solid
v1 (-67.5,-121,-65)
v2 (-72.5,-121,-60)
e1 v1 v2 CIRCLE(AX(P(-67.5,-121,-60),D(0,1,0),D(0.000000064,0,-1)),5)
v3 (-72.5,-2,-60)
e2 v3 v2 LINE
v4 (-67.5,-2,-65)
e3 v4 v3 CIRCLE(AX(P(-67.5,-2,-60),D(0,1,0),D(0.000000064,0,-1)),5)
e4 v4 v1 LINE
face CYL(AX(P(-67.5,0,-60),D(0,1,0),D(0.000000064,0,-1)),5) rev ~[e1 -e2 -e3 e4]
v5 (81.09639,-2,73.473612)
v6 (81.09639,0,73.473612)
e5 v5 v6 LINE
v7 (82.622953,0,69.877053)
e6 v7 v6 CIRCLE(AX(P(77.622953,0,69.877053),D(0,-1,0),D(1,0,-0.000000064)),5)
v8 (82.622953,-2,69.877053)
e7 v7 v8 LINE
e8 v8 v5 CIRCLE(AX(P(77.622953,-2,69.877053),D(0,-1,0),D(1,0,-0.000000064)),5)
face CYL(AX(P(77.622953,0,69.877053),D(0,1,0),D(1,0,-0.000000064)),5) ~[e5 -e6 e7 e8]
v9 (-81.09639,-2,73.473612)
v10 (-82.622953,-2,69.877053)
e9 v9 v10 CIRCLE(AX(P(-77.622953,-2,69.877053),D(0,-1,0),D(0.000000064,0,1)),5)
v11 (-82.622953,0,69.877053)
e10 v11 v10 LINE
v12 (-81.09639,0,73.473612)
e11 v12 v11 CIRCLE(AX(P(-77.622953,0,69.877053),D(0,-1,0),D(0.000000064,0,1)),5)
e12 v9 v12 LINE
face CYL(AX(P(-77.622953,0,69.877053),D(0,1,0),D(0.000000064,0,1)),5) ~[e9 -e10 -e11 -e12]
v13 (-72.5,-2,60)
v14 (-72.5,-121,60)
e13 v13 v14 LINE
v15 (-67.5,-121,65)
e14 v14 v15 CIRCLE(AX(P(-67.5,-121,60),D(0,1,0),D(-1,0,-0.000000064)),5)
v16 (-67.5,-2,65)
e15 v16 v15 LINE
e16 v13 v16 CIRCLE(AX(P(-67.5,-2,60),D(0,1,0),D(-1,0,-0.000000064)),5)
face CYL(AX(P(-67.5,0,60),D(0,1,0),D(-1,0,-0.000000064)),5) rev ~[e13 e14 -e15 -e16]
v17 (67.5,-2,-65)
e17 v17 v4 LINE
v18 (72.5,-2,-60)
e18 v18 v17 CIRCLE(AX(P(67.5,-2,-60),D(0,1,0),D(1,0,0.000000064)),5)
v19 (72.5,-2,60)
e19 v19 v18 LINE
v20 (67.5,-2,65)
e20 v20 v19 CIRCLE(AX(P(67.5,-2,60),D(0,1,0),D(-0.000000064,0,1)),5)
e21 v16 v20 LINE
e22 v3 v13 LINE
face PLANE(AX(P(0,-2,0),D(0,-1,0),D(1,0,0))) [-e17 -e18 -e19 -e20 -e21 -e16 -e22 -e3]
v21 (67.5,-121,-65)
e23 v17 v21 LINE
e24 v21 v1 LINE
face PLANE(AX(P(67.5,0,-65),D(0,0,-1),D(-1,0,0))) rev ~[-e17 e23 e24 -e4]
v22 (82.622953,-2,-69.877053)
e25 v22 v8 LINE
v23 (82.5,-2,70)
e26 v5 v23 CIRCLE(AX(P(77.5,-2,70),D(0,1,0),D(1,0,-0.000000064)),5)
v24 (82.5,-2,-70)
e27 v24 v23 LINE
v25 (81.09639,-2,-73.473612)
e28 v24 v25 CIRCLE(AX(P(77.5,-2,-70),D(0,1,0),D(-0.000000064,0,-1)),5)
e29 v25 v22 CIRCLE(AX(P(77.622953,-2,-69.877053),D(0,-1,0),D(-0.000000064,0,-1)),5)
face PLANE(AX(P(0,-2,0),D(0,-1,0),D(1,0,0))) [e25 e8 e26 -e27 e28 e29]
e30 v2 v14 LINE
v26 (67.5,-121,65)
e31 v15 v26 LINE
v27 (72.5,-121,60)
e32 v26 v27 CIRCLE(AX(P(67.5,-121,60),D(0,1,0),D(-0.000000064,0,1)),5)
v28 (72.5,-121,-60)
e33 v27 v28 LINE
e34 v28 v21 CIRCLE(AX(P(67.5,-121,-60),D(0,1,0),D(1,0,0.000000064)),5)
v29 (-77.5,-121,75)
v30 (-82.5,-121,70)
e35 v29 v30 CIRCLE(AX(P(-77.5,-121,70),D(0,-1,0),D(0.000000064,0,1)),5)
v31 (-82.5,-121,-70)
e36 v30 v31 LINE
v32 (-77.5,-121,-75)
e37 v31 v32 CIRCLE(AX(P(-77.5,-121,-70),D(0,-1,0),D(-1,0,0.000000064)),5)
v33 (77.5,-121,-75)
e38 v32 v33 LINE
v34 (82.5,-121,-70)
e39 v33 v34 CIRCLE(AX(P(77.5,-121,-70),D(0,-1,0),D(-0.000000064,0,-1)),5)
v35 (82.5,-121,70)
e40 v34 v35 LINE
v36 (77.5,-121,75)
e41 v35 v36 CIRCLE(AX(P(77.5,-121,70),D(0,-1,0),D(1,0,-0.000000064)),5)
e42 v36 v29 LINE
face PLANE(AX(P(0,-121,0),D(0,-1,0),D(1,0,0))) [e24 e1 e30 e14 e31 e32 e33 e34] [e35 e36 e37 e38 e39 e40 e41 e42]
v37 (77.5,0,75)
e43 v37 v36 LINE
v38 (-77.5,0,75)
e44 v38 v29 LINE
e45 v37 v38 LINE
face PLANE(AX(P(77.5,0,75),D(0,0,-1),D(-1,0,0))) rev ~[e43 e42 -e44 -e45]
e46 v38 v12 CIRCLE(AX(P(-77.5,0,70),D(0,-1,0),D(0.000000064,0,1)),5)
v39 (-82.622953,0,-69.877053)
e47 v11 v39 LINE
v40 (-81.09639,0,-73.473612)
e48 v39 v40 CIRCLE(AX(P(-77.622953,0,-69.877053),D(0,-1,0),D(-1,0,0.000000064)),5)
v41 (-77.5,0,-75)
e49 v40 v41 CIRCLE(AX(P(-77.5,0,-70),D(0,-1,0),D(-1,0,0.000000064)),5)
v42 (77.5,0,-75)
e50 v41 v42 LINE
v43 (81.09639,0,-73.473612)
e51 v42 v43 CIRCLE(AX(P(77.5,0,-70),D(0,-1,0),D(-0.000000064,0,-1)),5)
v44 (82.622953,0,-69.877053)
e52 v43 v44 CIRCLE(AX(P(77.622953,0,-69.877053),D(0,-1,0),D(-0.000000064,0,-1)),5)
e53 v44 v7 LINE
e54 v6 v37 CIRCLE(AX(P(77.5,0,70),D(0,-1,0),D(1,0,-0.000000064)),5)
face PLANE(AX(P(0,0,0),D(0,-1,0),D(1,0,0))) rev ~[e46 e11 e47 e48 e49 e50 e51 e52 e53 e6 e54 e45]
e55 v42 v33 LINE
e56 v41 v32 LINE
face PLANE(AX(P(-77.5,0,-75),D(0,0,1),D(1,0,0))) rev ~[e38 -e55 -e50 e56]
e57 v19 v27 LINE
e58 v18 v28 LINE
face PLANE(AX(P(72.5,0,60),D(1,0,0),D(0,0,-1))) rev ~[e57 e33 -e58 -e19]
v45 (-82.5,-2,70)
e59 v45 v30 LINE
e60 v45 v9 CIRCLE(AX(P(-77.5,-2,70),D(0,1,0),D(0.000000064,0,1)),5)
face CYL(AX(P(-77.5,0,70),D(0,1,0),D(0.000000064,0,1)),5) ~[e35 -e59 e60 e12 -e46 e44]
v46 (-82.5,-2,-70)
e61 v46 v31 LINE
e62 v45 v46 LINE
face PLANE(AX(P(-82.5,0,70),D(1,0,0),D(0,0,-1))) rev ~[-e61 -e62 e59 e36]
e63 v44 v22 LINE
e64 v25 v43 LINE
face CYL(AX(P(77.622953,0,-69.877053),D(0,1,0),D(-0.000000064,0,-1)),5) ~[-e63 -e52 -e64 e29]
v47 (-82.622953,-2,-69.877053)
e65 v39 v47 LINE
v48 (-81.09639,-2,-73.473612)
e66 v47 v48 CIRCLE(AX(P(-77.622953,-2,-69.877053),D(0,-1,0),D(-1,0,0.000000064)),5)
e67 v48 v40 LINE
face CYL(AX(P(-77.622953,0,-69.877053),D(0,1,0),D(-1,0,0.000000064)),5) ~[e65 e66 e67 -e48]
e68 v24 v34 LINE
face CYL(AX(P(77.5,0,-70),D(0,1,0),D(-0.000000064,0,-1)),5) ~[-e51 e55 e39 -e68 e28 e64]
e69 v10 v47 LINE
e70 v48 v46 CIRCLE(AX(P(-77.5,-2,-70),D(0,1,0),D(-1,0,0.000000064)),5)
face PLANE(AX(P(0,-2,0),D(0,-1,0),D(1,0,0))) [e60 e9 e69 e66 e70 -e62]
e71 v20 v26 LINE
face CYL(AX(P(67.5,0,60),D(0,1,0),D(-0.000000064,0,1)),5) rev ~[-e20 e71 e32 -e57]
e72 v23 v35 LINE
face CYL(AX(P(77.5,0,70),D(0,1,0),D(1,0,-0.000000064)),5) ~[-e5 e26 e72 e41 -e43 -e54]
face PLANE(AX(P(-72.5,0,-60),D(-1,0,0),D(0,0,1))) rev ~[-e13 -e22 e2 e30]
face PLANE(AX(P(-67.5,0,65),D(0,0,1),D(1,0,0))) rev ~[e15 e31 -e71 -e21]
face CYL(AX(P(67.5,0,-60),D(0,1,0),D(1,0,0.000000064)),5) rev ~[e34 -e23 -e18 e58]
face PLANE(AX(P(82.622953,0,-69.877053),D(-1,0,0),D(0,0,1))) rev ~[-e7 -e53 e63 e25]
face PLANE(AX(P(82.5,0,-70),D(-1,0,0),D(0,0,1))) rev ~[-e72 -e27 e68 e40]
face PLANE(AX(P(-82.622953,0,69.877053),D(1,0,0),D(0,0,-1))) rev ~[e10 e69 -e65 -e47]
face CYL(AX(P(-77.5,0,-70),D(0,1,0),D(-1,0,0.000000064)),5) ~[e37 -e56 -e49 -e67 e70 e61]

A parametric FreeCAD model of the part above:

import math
import FreeCAD as App
import Part
import Sketcher
Q = App.Units.Quantity

doc = App.newDocument("Part")
body = doc.addObject("PartDesign::Body", "Body")

sketch1 = doc.addObject("Sketcher::SketchObject", "Sketch")
body.addObject(sketch1)
sketch1.AttachmentSupport = (doc.XZ_Plane, [""])
sketch1.MapMode = "FlatFace"
sketch1.addGeometry([
    Part.LineSegment(App.Vector(77.5, 75, 0), App.Vector(-77.5, 75, 0)),
    Part.ArcOfCircle(Part.Circle(App.Vector(-77.5, 70, 0), App.Vector(0, 0, 1), 5), math.radians(90), math.radians(180)),
    Part.LineSegment(App.Vector(-82.5, 70, 0), App.Vector(-82.5, -70, 0)),
    Part.ArcOfCircle(Part.Circle(App.Vector(-77.5, -70, 0), App.Vector(0, 0, 1), 5), math.radians(180), math.radians(270)),
    Part.LineSegment(App.Vector(-77.5, -75, 0), App.Vector(77.5, -75, 0)),
    Part.ArcOfCircle(Part.Circle(App.Vector(77.5, -70, 0), App.Vector(0, 0, 1), 5), math.radians(-90), math.radians(0)),
    Part.LineSegment(App.Vector(82.5, -70, 0), App.Vector(82.5, 70, 0)),
    Part.ArcOfCircle(Part.Circle(App.Vector(77.5, 70, 0), App.Vector(0, 0, 1), 5), math.radians(0), math.radians(90)),
    Part.LineSegment(App.Vector(-72.5, -60, 0), App.Vector(-72.5, 60, 0)),
    Part.ArcOfCircle(Part.Circle(App.Vector(-67.5, 60, 0), App.Vector(0, 0, 1), 5), math.radians(90), math.radians(180)),
    Part.LineSegment(App.Vector(-67.5, 65, 0), App.Vector(67.5, 65, 0)),
    Part.ArcOfCircle(Part.Circle(App.Vector(67.5, 60, 0), App.Vector(0, 0, 1), 5), math.radians(0), math.radians(90)),
    Part.LineSegment(App.Vector(72.5, 60, 0), App.Vector(72.5, -60, 0)),
    Part.ArcOfCircle(Part.Circle(App.Vector(67.5, -60, 0), App.Vector(0, 0, 1), 5), math.radians(-90), math.radians(0)),
    Part.LineSegment(App.Vector(67.5, -65, 0), App.Vector(-67.5, -65, 0)),
    Part.ArcOfCircle(Part.Circle(App.Vector(-67.5, -60, 0), App.Vector(0, 0, 1), 5), math.radians(180), math.radians(270)),
], False)
sketch1.addConstraint([
    Sketcher.Constraint("Tangent", 0, 2, 1, 1),
    Sketcher.Constraint("Tangent", 1, 2, 2, 1),
    Sketcher.Constraint("Tangent", 2, 2, 3, 1),
    Sketcher.Constraint("Tangent", 3, 2, 4, 1),
    Sketcher.Constraint("Tangent", 4, 2, 5, 1),
    Sketcher.Constraint("Tangent", 5, 2, 6, 1),
    Sketcher.Constraint("Tangent", 6, 2, 7, 1),
    Sketcher.Constraint("Tangent", 7, 2, 0, 1),
    Sketcher.Constraint("Tangent", 8, 2, 9, 2),
    Sketcher.Constraint("Tangent", 9, 1, 10, 1),
    Sketcher.Constraint("Tangent", 10, 2, 11, 2),
    Sketcher.Constraint("Tangent", 11, 1, 12, 1),
    Sketcher.Constraint("Tangent", 12, 2, 13, 2),
    Sketcher.Constraint("Tangent", 13, 1, 14, 1),
    Sketcher.Constraint("Tangent", 14, 2, 15, 2),
    Sketcher.Constraint("Tangent", 15, 1, 8, 1),
    Sketcher.Constraint("Horizontal", 0),
    Sketcher.Constraint("Vertical", 2),
    Sketcher.Constraint("Horizontal", 4),
    Sketcher.Constraint("Vertical", 6),
    Sketcher.Constraint("Vertical", 8),
    Sketcher.Constraint("Horizontal", 10),
    Sketcher.Constraint("Vertical", 12),
    Sketcher.Constraint("Horizontal", 14),
    Sketcher.Constraint("Equal", 1, 3),
    Sketcher.Constraint("Equal", 3, 5),
    Sketcher.Constraint("Equal", 5, 7),
    Sketcher.Constraint("Equal", 7, 9),
    Sketcher.Constraint("Equal", 9, 11),
    Sketcher.Constraint("Equal", 11, 13),
    Sketcher.Constraint("Equal", 13, 15),
    Sketcher.Constraint("Symmetric", 1, 3, 5, 3, -1, 1),
    Sketcher.Constraint("Symmetric", 9, 3, 13, 3, -1, 1),
    Sketcher.Constraint("Radius", 1, Q("5 mm")),
    Sketcher.Constraint("DistanceX", 0, 2, 0, 1, Q("155 mm")),
    Sketcher.Constraint("DistanceX", 10, 1, 10, 2, Q("135 mm")),
    Sketcher.Constraint("DistanceY", 2, 2, 2, 1, Q("140 mm")),
    Sketcher.Constraint("DistanceY", 8, 1, 8, 2, Q("120 mm")),
])
pad1 = doc.addObject("PartDesign::Pad", "Pad")
body.addObject(pad1)
pad1.Profile = sketch1
pad1.Length = 121

sketch2 = doc.addObject("Sketcher::SketchObject", "Sketch001")
body.addObject(sketch2)
sketch2.AttachmentSupport = (doc.XZ_Plane, [""])
sketch2.MapMode = "FlatFace"
sketch2.addGeometry([
    Part.LineSegment(App.Vector(77.6, 74.9, 0), App.Vector(-77.6, 74.9, 0)),
    Part.ArcOfCircle(Part.Circle(App.Vector(-77.6, 69.9, 0), App.Vector(0, 0, 1), 5), math.radians(90), math.radians(180)),
    Part.LineSegment(App.Vector(-82.6, 69.9, 0), App.Vector(-82.6, -69.9, 0)),
    Part.ArcOfCircle(Part.Circle(App.Vector(-77.6, -69.9, 0), App.Vector(0, 0, 1), 5), math.radians(180), math.radians(270)),
    Part.LineSegment(App.Vector(-77.6, -74.9, 0), App.Vector(77.6, -74.9, 0)),
    Part.ArcOfCircle(Part.Circle(App.Vector(77.6, -69.9, 0), App.Vector(0, 0, 1), 5), math.radians(-90), math.radians(0)),
    Part.LineSegment(App.Vector(82.6, -69.9, 0), App.Vector(82.6, 69.9, 0)),
    Part.ArcOfCircle(Part.Circle(App.Vector(77.6, 69.9, 0), App.Vector(0, 0, 1), 5), math.radians(0), math.radians(90)),
], False)
sketch2.addConstraint([
    Sketcher.Constraint("Tangent", 0, 2, 1, 1),
    Sketcher.Constraint("Tangent", 1, 2, 2, 1),
    Sketcher.Constraint("Tangent", 2, 2, 3, 1),
    Sketcher.Constraint("Tangent", 3, 2, 4, 1),
    Sketcher.Constraint("Tangent", 4, 2, 5, 1),
    Sketcher.Constraint("Tangent", 5, 2, 6, 1),
    Sketcher.Constraint("Tangent", 6, 2, 7, 1),
    Sketcher.Constraint("Tangent", 7, 2, 0, 1),
    Sketcher.Constraint("Horizontal", 0),
    Sketcher.Constraint("Vertical", 2),
    Sketcher.Constraint("Horizontal", 4),
    Sketcher.Constraint("Vertical", 6),
    Sketcher.Constraint("Equal", 1, 3),
    Sketcher.Constraint("Equal", 3, 5),
    Sketcher.Constraint("Equal", 5, 7),
    Sketcher.Constraint("Symmetric", 1, 3, 5, 3, -1, 1),
    Sketcher.Constraint("Radius", 1, Q("5 mm")),
    Sketcher.Constraint("DistanceX", 0, 2, 0, 1, Q("155.245906 mm")),
    Sketcher.Constraint("DistanceY", 2, 2, 2, 1, Q("139.754106 mm")),
])
pad2 = doc.addObject("PartDesign::Pad", "Pad001")
body.addObject(pad2)
pad2.Profile = sketch2
pad2.Length = 2

doc.recompute()
